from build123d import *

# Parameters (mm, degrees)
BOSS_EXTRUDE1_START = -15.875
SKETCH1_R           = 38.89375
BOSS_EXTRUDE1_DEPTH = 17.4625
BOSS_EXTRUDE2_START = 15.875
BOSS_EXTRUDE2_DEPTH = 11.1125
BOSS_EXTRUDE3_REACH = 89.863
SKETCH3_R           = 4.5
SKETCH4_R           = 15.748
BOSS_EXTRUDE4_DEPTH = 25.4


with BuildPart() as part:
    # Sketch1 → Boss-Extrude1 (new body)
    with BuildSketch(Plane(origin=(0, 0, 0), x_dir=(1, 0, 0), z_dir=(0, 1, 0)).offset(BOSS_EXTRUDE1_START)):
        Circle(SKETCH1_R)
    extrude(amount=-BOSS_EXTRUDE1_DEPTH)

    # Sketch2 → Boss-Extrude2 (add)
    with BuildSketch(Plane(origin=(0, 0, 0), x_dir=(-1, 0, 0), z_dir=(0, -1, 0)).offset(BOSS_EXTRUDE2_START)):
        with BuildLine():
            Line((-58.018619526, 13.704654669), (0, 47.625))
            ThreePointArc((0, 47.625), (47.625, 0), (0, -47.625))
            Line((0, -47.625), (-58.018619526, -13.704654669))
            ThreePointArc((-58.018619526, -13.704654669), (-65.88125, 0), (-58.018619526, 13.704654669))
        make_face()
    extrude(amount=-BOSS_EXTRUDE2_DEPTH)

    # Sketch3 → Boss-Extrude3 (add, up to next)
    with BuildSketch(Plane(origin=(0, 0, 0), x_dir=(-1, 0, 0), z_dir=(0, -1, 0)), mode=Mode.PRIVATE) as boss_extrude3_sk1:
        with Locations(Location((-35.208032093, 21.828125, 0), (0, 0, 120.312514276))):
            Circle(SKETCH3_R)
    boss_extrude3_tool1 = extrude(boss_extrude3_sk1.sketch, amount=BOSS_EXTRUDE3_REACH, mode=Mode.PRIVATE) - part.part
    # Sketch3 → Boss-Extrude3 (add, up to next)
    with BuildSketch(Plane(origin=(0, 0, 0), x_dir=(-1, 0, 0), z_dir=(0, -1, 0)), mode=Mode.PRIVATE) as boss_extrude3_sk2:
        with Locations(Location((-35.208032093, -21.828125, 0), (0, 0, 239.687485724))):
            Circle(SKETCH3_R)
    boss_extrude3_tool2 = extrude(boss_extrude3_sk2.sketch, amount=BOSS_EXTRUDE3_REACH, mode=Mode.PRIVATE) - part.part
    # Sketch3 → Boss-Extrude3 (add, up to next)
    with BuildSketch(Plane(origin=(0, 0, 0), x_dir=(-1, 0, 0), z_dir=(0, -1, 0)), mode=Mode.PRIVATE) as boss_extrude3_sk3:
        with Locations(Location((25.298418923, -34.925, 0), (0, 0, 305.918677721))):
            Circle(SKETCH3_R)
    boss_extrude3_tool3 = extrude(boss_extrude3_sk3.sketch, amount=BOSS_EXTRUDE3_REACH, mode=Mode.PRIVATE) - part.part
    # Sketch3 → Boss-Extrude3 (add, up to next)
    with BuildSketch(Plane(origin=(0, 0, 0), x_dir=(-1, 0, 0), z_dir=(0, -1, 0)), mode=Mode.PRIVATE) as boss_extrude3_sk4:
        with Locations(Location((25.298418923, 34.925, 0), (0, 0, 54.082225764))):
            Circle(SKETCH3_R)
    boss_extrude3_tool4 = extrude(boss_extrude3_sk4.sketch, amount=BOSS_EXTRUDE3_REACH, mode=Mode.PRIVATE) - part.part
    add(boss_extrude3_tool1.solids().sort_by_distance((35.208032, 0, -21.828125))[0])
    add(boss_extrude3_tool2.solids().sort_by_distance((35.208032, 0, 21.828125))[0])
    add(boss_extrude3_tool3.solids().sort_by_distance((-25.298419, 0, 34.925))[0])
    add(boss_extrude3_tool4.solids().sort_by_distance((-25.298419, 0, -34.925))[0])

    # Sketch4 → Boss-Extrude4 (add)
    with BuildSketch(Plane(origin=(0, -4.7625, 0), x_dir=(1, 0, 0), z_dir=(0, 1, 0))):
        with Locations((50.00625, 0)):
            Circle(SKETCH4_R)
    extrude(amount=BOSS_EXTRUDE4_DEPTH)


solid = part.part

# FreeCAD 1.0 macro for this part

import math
import FreeCAD as App
import Part
import Sketcher

V = App.Vector
Q = App.Units.Quantity

doc = App.newDocument("Part")
body = doc.addObject("PartDesign::Body", "Body")

sketch1 = doc.addObject("Sketcher::SketchObject", "Sketch")
body.addObject(sketch1)
sketch1.AttachmentSupport = (doc.XZ_Plane, [""])
sketch1.MapMode = "FlatFace"
sketch1.AttachmentOffset = App.Placement(V(0, 0, 0.625 * 25.4), App.Rotation())
sketch1.addGeometry(Part.Circle(V(0, 0, 0), V(0, 0, 1), 39), False)
sketch1.addConstraint(Sketcher.Constraint("Coincident", 0, 3, -1, 1))
sketch1.addConstraint(Sketcher.Constraint("Diameter", 0, Q("3.0625 in")))
pad1 = doc.addObject("PartDesign::Pad", "Pad")
body.addObject(pad1)
pad1.Profile = sketch1
pad1.Length = Q("0.6875 in")

sketch2 = doc.addObject("Sketcher::SketchObject", "Sketch001")
body.addObject(sketch2)
sketch2.AttachmentSupport = (doc.XZ_Plane, [""])
sketch2.MapMode = "FlatFace"
sketch2.AttachmentOffset = App.Placement(V(0, 0, 0.625 * 25.4), App.Rotation())
sketch2.addGeometry(Part.LineSegment(V(0, -48, 0), V(58, -14, 0)), False)
sketch2.addGeometry(Part.ArcOfCircle(Part.Circle(V(50, 0, 0), V(0, 0, 1), 16), math.radians(-60), math.radians(60)), False)
sketch2.addGeometry(Part.LineSegment(V(58, 14, 0), V(0, 48, 0)), False)
sketch2.addGeometry(Part.ArcOfCircle(Part.Circle(V(0, 0, 0), V(0, 0, 1), 48), math.radians(90), math.radians(270)), False)
sketch2.addConstraint(Sketcher.Constraint("Tangent", 0, 2, 1, 1))
sketch2.addConstraint(Sketcher.Constraint("Tangent", 1, 2, 2, 1))
sketch2.addConstraint(Sketcher.Constraint("Coincident", 2, 2, 3, 1))
sketch2.addConstraint(Sketcher.Constraint("Coincident", 3, 2, 0, 1))
sketch2.addConstraint(Sketcher.Constraint("Coincident", 3, 3, -1, 1))
sketch2.addConstraint(Sketcher.Constraint("Symmetric", 0, 2, 1, 2, -1))
sketch2.addConstraint(Sketcher.Constraint("PointOnObject", 2, 2, -2))
sketch2.addConstraint(Sketcher.Constraint("Radius", 1, Q("0.625 in")))
sketch2.addConstraint(Sketcher.Constraint("Radius", 3, Q("1.875 in")))
sketch2.addConstraint(Sketcher.Constraint("DistanceX", -1, 1, 1, 3, Q("1.96875 in")))
pad2 = doc.addObject("PartDesign::Pad", "Pad001")
body.addObject(pad2)
pad2.Profile = sketch2
pad2.Length = Q("0.4375 in")
pad2.Reversed = True

sketch3 = doc.addObject("Sketcher::SketchObject", "Sketch002")
body.addObject(sketch3)
sketch3.AttachmentSupport = (doc.XZ_Plane, [""])
sketch3.MapMode = "FlatFace"
sketch3.addGeometry(Part.Circle(V(35.2, -21.8, 0), V(0, 0, 1), 4.5), False)
sketch3.addConstraint(Sketcher.Constraint("Diameter", 0, Q("9 mm")))
sketch3.addConstraint(Sketcher.Constraint("DistanceY", 0, 3, -1, 1, Q("0.859375 in")))
sketch3.addConstraint(Sketcher.Constraint("DistanceX", -1, 1, 0, 3, Q("35.208032 mm")))
pad3 = doc.addObject("PartDesign::Pad", "Pad002")
body.addObject(pad3)
pad3.Profile = sketch3
pad3.Type = "UpToFirst"

sketch4 = doc.addObject("Sketcher::SketchObject", "Sketch003")
body.addObject(sketch4)
sketch4.AttachmentSupport = (doc.XZ_Plane, [""])
sketch4.MapMode = "FlatFace"
sketch4.addGeometry(Part.Circle(V(35.2, 21.8, 0), V(0, 0, 1), 4.5), False)
sketch4.addConstraint(Sketcher.Constraint("Diameter", 0, Q("9 mm")))
sketch4.addConstraint(Sketcher.Constraint("DistanceY", -1, 1, 0, 3, Q("0.859375 in")))
sketch4.addConstraint(Sketcher.Constraint("DistanceX", -1, 1, 0, 3, Q("35.208032 mm")))
pad4 = doc.addObject("PartDesign::Pad", "Pad003")
body.addObject(pad4)
pad4.Profile = sketch4
pad4.Type = "UpToFirst"

sketch5 = doc.addObject("Sketcher::SketchObject", "Sketch004")
body.addObject(sketch5)
sketch5.AttachmentSupport = (doc.XZ_Plane, [""])
sketch5.MapMode = "FlatFace"
sketch5.addGeometry(Part.Circle(V(-25.3, 34.9, 0), V(0, 0, 1), 4.5), False)
sketch5.addConstraint(Sketcher.Constraint("Diameter", 0, Q("9 mm")))
sketch5.addConstraint(Sketcher.Constraint("DistanceY", -1, 1, 0, 3, Q("1.375 in")))
sketch5.addConstraint(Sketcher.Constraint("DistanceX", 0, 3, -1, 1, Q("25.298419 mm")))
pad5 = doc.addObject("PartDesign::Pad", "Pad004")
body.addObject(pad5)
pad5.Profile = sketch5
pad5.Type = "UpToFirst"

sketch6 = doc.addObject("Sketcher::SketchObject", "Sketch005")
body.addObject(sketch6)
sketch6.AttachmentSupport = (doc.XZ_Plane, [""])
sketch6.MapMode = "FlatFace"
sketch6.addGeometry(Part.Circle(V(-25.3, -34.9, 0), V(0, 0, 1), 4.5), False)
sketch6.addConstraint(Sketcher.Constraint("Diameter", 0, Q("9 mm")))
sketch6.addConstraint(Sketcher.Constraint("DistanceY", 0, 3, -1, 1, Q("1.375 in")))
sketch6.addConstraint(Sketcher.Constraint("DistanceX", 0, 3, -1, 1, Q("25.298419 mm")))
pad6 = doc.addObject("PartDesign::Pad", "Pad005")
body.addObject(pad6)
pad6.Profile = sketch6
pad6.Type = "UpToFirst"

sketch7 = doc.addObject("Sketcher::SketchObject", "Sketch006")
body.addObject(sketch7)
sketch7.AttachmentSupport = (doc.XZ_Plane, [""])
sketch7.MapMode = "FlatFace"
sketch7.AttachmentOffset = App.Placement(V(0, 0, 0.1875 * 25.4), App.Rotation())
sketch7.addGeometry(Part.Circle(V(50, 0, 0), V(0, 0, 1), 16), False)
sketch7.addConstraint(Sketcher.Constraint("PointOnObject", 0, 3, -1))
sketch7.addConstraint(Sketcher.Constraint("Diameter", 0, Q("1.24 in")))
sketch7.addConstraint(Sketcher.Constraint("DistanceX", -1, 1, 0, 3, Q("1.96875 in")))
pad7 = doc.addObject("PartDesign::Pad", "Pad006")
body.addObject(pad7)
pad7.Profile = sketch7
pad7.Length = Q("1 in")
pad7.Reversed = True

doc.recompute()
